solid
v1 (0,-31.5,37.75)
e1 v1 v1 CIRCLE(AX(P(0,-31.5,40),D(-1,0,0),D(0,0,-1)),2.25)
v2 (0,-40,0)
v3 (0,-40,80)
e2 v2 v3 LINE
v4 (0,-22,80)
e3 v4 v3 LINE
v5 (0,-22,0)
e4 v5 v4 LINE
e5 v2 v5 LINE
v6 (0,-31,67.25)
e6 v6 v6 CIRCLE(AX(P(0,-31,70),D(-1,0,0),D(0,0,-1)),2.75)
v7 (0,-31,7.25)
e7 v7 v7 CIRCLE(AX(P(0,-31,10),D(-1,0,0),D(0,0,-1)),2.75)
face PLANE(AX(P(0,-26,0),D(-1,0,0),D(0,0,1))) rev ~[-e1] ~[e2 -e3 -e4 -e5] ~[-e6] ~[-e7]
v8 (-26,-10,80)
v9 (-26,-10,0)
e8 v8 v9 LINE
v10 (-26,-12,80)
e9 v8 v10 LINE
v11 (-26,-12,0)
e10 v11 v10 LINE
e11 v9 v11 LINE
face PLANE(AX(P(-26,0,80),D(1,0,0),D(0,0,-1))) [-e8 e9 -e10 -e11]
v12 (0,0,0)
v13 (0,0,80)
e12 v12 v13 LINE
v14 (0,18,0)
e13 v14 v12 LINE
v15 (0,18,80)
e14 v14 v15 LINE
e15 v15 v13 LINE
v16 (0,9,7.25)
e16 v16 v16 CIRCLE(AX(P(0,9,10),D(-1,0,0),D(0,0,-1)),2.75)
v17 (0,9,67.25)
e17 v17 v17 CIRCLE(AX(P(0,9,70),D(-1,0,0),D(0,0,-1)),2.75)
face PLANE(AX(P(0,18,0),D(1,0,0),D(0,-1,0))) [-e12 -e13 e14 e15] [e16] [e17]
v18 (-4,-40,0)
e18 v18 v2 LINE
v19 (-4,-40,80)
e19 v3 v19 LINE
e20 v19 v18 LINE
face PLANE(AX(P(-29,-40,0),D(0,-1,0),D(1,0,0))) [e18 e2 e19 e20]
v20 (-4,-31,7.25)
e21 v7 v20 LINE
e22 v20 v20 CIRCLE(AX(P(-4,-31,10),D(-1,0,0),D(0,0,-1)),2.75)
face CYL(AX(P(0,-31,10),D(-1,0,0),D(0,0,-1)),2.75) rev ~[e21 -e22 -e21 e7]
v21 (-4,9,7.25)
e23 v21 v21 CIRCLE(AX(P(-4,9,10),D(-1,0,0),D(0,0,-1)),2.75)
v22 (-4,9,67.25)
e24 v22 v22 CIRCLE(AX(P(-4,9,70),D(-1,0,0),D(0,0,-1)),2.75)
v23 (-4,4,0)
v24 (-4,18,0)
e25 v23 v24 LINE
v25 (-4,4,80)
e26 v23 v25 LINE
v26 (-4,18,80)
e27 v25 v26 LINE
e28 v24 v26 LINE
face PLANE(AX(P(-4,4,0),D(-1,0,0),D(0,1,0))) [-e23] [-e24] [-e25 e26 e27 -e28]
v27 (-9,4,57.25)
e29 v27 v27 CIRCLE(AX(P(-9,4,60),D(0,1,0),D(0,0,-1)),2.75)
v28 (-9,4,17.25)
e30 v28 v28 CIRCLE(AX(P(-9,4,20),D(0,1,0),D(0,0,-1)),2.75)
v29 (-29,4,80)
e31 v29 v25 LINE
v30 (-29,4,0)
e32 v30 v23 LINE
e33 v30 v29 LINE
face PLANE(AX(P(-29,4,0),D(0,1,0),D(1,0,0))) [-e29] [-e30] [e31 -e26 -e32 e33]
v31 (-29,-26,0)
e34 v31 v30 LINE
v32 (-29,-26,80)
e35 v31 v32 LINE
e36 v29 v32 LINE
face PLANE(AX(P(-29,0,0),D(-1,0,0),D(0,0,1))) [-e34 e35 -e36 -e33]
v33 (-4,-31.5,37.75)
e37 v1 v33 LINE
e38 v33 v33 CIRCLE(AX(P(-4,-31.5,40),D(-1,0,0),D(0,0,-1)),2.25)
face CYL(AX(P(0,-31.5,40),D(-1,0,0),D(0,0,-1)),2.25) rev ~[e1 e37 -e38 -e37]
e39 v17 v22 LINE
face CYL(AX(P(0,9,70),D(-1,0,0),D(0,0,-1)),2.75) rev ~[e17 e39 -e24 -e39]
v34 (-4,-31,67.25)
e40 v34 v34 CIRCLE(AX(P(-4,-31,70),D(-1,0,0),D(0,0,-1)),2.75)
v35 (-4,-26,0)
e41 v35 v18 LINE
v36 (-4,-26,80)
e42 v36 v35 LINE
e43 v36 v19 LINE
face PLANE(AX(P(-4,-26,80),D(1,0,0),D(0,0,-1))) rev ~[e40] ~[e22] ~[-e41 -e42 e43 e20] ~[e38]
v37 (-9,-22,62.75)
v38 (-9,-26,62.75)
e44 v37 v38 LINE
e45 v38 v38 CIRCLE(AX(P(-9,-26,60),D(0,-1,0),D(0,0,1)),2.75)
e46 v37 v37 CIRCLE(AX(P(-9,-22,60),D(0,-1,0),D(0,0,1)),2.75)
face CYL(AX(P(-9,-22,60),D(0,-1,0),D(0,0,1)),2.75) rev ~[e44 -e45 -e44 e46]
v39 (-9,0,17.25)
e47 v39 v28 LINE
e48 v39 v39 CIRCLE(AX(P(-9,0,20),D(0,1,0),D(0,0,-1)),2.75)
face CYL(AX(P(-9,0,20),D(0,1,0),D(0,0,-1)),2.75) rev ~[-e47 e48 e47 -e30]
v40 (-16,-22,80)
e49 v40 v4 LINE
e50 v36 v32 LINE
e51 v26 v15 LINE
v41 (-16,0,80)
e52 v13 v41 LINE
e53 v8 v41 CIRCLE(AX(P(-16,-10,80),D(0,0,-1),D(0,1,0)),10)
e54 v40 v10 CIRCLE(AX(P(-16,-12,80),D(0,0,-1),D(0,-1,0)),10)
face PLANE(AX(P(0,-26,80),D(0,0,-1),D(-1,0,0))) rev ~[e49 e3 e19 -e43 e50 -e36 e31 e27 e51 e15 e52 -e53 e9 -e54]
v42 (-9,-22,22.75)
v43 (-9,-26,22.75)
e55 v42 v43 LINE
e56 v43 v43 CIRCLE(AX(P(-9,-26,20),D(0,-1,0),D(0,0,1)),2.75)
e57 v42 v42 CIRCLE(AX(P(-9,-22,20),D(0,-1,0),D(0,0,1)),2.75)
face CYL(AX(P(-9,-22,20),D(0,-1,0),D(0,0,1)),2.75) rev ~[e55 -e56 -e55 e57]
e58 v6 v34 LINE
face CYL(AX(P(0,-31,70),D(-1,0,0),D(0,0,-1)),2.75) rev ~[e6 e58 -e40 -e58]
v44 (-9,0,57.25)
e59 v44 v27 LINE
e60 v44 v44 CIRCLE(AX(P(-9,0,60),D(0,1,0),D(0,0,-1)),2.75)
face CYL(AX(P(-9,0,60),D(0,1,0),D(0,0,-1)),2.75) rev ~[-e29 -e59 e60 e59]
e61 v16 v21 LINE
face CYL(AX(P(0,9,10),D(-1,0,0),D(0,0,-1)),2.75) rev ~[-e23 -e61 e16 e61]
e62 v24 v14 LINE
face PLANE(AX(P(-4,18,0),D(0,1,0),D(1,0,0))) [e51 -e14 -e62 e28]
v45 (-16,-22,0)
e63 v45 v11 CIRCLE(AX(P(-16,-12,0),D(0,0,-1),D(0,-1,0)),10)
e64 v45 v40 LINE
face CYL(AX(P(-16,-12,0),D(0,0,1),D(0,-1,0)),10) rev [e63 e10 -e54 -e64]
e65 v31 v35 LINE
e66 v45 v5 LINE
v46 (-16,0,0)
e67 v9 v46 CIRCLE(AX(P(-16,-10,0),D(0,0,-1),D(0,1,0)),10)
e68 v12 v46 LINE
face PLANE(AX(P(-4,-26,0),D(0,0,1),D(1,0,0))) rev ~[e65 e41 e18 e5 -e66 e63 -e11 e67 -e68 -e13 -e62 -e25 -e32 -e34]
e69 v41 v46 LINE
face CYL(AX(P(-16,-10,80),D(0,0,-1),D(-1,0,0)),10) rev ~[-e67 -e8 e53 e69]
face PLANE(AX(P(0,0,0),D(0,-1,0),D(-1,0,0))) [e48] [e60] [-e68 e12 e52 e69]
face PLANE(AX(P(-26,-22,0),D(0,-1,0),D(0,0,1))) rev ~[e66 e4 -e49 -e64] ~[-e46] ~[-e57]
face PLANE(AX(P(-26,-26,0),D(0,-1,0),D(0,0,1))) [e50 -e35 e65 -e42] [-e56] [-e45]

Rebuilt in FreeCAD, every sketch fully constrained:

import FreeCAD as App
import Part
import Sketcher
from FreeCAD import Vector
Q = App.Units.Quantity


def edges_at(feature, points):
    """Names of the edges that pass closest to the given points."""
    edges = feature.Shape.Edges
    near = lambda p: min(range(len(edges)), key=lambda i: edges[i].distToShape(Part.Vertex(*p))[0])
    return sorted({f"Edge{near(p) + 1}" for p in points})

doc = App.newDocument("Part")
body = doc.addObject("PartDesign::Body", "Body")

sketch1 = body.newObject("Sketcher::SketchObject", "Sketch")
sketch1.AttachmentSupport = (doc.getObject("XY_Plane"), [""])
sketch1.MapMode = "FlatFace"
sketch1.addGeometry(Part.LineSegment(Vector(-29, 0, 0), Vector(0, 0, 0)), False)
sketch1.addGeometry(Part.LineSegment(Vector(0, 0, 0), Vector(0, 18, 0)), False)
sketch1.addGeometry(Part.LineSegment(Vector(0, 18, 0), Vector(-4, 18, 0)), False)
sketch1.addGeometry(Part.LineSegment(Vector(-4, 18, 0), Vector(-4, 4, 0)), False)
sketch1.addGeometry(Part.LineSegment(Vector(-4, 4, 0), Vector(-29, 4, 0)), False)
sketch1.addGeometry(Part.LineSegment(Vector(-29, 4, 0), Vector(-29, 0, 0)), False)
sketch1.addConstraint(Sketcher.Constraint("Coincident", 0, 2, 1, 1))
sketch1.addConstraint(Sketcher.Constraint("Coincident", 1, 2, 2, 1))
sketch1.addConstraint(Sketcher.Constraint("Coincident", 2, 2, 3, 1))
sketch1.addConstraint(Sketcher.Constraint("Coincident", 3, 2, 4, 1))
sketch1.addConstraint(Sketcher.Constraint("Coincident", 4, 2, 5, 1))
sketch1.addConstraint(Sketcher.Constraint("Coincident", 5, 2, 0, 1))
sketch1.addConstraint(Sketcher.Constraint("Horizontal", 0))
sketch1.addConstraint(Sketcher.Constraint("Vertical", 1))
sketch1.addConstraint(Sketcher.Constraint("Horizontal", 2))
sketch1.addConstraint(Sketcher.Constraint("Vertical", 3))
sketch1.addConstraint(Sketcher.Constraint("Horizontal", 4))
sketch1.addConstraint(Sketcher.Constraint("Vertical", 5))
sketch1.addConstraint(Sketcher.Constraint("Coincident", 0, 2, -1, 1))
sketch1.addConstraint(Sketcher.Constraint("Equal", 2, 5))
sketch1.addConstraint(Sketcher.Constraint("DistanceX", 0, 1, 0, 2, Q("29 mm")))
sketch1.addConstraint(Sketcher.Constraint("DistanceX", 2, 2, 2, 1, Q("4 mm")))
sketch1.addConstraint(Sketcher.Constraint("DistanceY", 1, 1, 1, 2, Q("18 mm")))
pad1 = body.newObject("PartDesign::Pad", "Pad")
pad1.Profile = sketch1
pad1.Length = 80

sketch2 = body.newObject("Sketcher::SketchObject", "Sketch001")
sketch2.AttachmentSupport = (doc.getObject("YZ_Plane"), [""])
sketch2.MapMode = "FlatFace"
sketch2.addGeometry(Part.Circle(Vector(9, 70, 0), Vector(0, 0, 1), 2.8), False)
sketch2.addGeometry(Part.Circle(Vector(9, 10, 0), Vector(0, 0, 1), 2.8), False)
sketch2.addConstraint(Sketcher.Constraint("Equal", 0, 1))
sketch2.addConstraint(Sketcher.Constraint("Vertical", 0, 3, 1, 3))
sketch2.addConstraint(Sketcher.Constraint("Diameter", 0, Q("5.5 mm")))
sketch2.addConstraint(Sketcher.Constraint("DistanceX", -1, 1, 0, 3, Q("9 mm")))
sketch2.addConstraint(Sketcher.Constraint("DistanceY", -1, 1, 0, 3, Q("70 mm")))
sketch2.addConstraint(Sketcher.Constraint("DistanceY", -1, 1, 1, 3, Q("10 mm")))
doc.recompute()
hole = body.newObject("PartDesign::Hole", "Hole")
hole.Profile = sketch2
hole.ThreadType = "None"
hole.Diameter = 5.5
hole.DepthType = "ThroughAll"

sketch3 = body.newObject("Sketcher::SketchObject", "Sketch002")
sketch3.AttachmentSupport = (doc.getObject("XZ_Plane"), [""])
sketch3.MapMode = "FlatFace"
sketch3.addGeometry(Part.Circle(Vector(-9, 60, 0), Vector(0, 0, 1), 2.8), False)
sketch3.addGeometry(Part.Circle(Vector(-9, 20, 0), Vector(0, 0, 1), 2.8), False)
sketch3.addConstraint(Sketcher.Constraint("Equal", 0, 1))
sketch3.addConstraint(Sketcher.Constraint("Vertical", 0, 3, 1, 3))
sketch3.addConstraint(Sketcher.Constraint("Diameter", 0, Q("5.5 mm")))
sketch3.addConstraint(Sketcher.Constraint("DistanceX", 0, 3, -1, 1, Q("9 mm")))
sketch3.addConstraint(Sketcher.Constraint("DistanceY", -1, 1, 0, 3, Q("60 mm")))
sketch3.addConstraint(Sketcher.Constraint("DistanceY", -1, 1, 1, 3, Q("20 mm")))
doc.recompute()
hole2 = body.newObject("PartDesign::Hole", "Hole001")
hole2.Profile = sketch3
hole2.ThreadType = "None"
hole2.Diameter = 5.5
hole2.DepthType = "ThroughAll"

sketch4 = body.newObject("Sketcher::SketchObject", "Sketch003")
sketch4.AttachmentSupport = (doc.getObject("XZ_Plane"), [""])
sketch4.MapMode = "FlatFace"
sketch4.addGeometry(Part.LineSegment(Vector(-26, 0, 0), Vector(-26, 80, 0)), False)
sketch4.addGeometry(Part.LineSegment(Vector(-26, 80, 0), Vector(-29, 80, 0)), False)
sketch4.addGeometry(Part.LineSegment(Vector(-29, 80, 0), Vector(-29, 0, 0)), False)
sketch4.addGeometry(Part.LineSegment(Vector(-29, 0, 0), Vector(-26, 0, 0)), False)
sketch4.addConstraint(Sketcher.Constraint("Coincident", 0, 2, 1, 1))
sketch4.addConstraint(Sketcher.Constraint("Coincident", 1, 2, 2, 1))
sketch4.addConstraint(Sketcher.Constraint("Coincident", 2, 2, 3, 1))
sketch4.addConstraint(Sketcher.Constraint("Coincident", 3, 2, 0, 1))
sketch4.addConstraint(Sketcher.Constraint("Vertical", 0))
sketch4.addConstraint(Sketcher.Constraint("Horizontal", 1))
sketch4.addConstraint(Sketcher.Constraint("Vertical", 2))
sketch4.addConstraint(Sketcher.Constraint("Horizontal", 3))
sketch4.addConstraint(Sketcher.Constraint("PointOnObject", 2, 2, -1))
sketch4.addConstraint(Sketcher.Constraint("DistanceX", 1, 2, 1, 1, Q("3 mm")))
sketch4.addConstraint(Sketcher.Constraint("DistanceY", 0, 1, 0, 2, Q("80 mm")))
sketch4.addConstraint(Sketcher.Constraint("DistanceX", 0, 2, -1, 1, Q("26 mm")))
pad2 = body.newObject("PartDesign::Pad", "Pad001")
pad2.Profile = sketch4
pad2.Length = 26

sketch5 = body.newObject("Sketcher::SketchObject", "Sketch004")
sketch5.AttachmentSupport = (doc.getObject("YZ_Plane"), [""])
sketch5.MapMode = "FlatFace"
sketch5.AttachmentOffset = App.Placement(Vector(0, 0, -26), App.Rotation())
sketch5.addGeometry(Part.LineSegment(Vector(-26, 80, 0), Vector(-26, 0, 0)), False)
sketch5.addGeometry(Part.LineSegment(Vector(-26, 0, 0), Vector(-22, 0, 0)), False)
sketch5.addGeometry(Part.LineSegment(Vector(-22, 0, 0), Vector(-22, 80, 0)), False)
sketch5.addGeometry(Part.LineSegment(Vector(-22, 80, 0), Vector(-26, 80, 0)), False)
sketch5.addConstraint(Sketcher.Constraint("Coincident", 0, 2, 1, 1))
sketch5.addConstraint(Sketcher.Constraint("Coincident", 1, 2, 2, 1))
sketch5.addConstraint(Sketcher.Constraint("Coincident", 2, 2, 3, 1))
sketch5.addConstraint(Sketcher.Constraint("Coincident", 3, 2, 0, 1))
sketch5.addConstraint(Sketcher.Constraint("Vertical", 0))
sketch5.addConstraint(Sketcher.Constraint("Horizontal", 1))
sketch5.addConstraint(Sketcher.Constraint("Vertical", 2))
sketch5.addConstraint(Sketcher.Constraint("Horizontal", 3))
sketch5.addConstraint(Sketcher.Constraint("PointOnObject", 0, 2, -1))
sketch5.addConstraint(Sketcher.Constraint("DistanceX", 1, 1, 1, 2, Q("4 mm")))
sketch5.addConstraint(Sketcher.Constraint("DistanceY", 0, 2, 0, 1, Q("80 mm")))
sketch5.addConstraint(Sketcher.Constraint("DistanceX", 0, 2, -1, 1, Q("26 mm")))
pad3 = body.newObject("PartDesign::Pad", "Pad002")
pad3.Profile = sketch5
pad3.Length = 26

sketch6 = body.newObject("Sketcher::SketchObject", "Sketch005")
sketch6.AttachmentSupport = (doc.getObject("XZ_Plane"), [""])
sketch6.MapMode = "FlatFace"
sketch6.AttachmentOffset = App.Placement(Vector(0, 0, 26), App.Rotation())
sketch6.addGeometry(Part.LineSegment(Vector(0, 0, 0), Vector(0, 80, 0)), False)
sketch6.addGeometry(Part.LineSegment(Vector(0, 80, 0), Vector(-4, 80, 0)), False)
sketch6.addGeometry(Part.LineSegment(Vector(-4, 80, 0), Vector(-4, 0, 0)), False)
sketch6.addGeometry(Part.LineSegment(Vector(-4, 0, 0), Vector(0, 0, 0)), False)
sketch6.addConstraint(Sketcher.Constraint("Coincident", 0, 2, 1, 1))
sketch6.addConstraint(Sketcher.Constraint("Coincident", 1, 2, 2, 1))
sketch6.addConstraint(Sketcher.Constraint("Coincident", 2, 2, 3, 1))
sketch6.addConstraint(Sketcher.Constraint("Coincident", 3, 2, 0, 1))
sketch6.addConstraint(Sketcher.Constraint("Vertical", 0))
sketch6.addConstraint(Sketcher.Constraint("Horizontal", 1))
sketch6.addConstraint(Sketcher.Constraint("Vertical", 2))
sketch6.addConstraint(Sketcher.Constraint("Horizontal", 3))
sketch6.addConstraint(Sketcher.Constraint("Coincident", 3, 2, -1, 1))
sketch6.addConstraint(Sketcher.Constraint("DistanceX", 1, 2, 1, 1, Q("4 mm")))
sketch6.addConstraint(Sketcher.Constraint("DistanceY", 0, 1, 0, 2, Q("80 mm")))
pad4 = body.newObject("PartDesign::Pad", "Pad003")
pad4.Profile = sketch6
pad4.Length = 14

sketch7 = body.newObject("Sketcher::SketchObject", "Sketch006")
sketch7.AttachmentSupport = (doc.getObject("YZ_Plane"), [""])
sketch7.MapMode = "FlatFace"
sketch7.addGeometry(Part.Circle(Vector(-31, 70, 0), Vector(0, 0, 1), 2.8), False)
sketch7.addGeometry(Part.Circle(Vector(-31, 10, 0), Vector(0, 0, 1), 2.8), False)
sketch7.addConstraint(Sketcher.Constraint("Equal", 0, 1))
sketch7.addConstraint(Sketcher.Constraint("Vertical", 0, 3, 1, 3))
sketch7.addConstraint(Sketcher.Constraint("Diameter", 0, Q("5.5 mm")))
sketch7.addConstraint(Sketcher.Constraint("DistanceX", 0, 3, -1, 1, Q("31 mm")))
sketch7.addConstraint(Sketcher.Constraint("DistanceY", -1, 1, 0, 3, Q("70 mm")))
sketch7.addConstraint(Sketcher.Constraint("DistanceY", -1, 1, 1, 3, Q("10 mm")))
doc.recompute()
hole3 = body.newObject("PartDesign::Hole", "Hole002")
hole3.Profile = sketch7
hole3.ThreadType = "None"
hole3.Diameter = 5.5
hole3.DepthType = "ThroughAll"

sketch8 = body.newObject("Sketcher::SketchObject", "Sketch007")
sketch8.AttachmentSupport = (doc.getObject("XZ_Plane"), [""])
sketch8.MapMode = "FlatFace"
sketch8.AttachmentOffset = App.Placement(Vector(0, 0, 22), App.Rotation())
sketch8.addGeometry(Part.Circle(Vector(-9, 60, 0), Vector(0, 0, 1), 2.8), False)
sketch8.addGeometry(Part.Circle(Vector(-9, 20, 0), Vector(0, 0, 1), 2.8), False)
sketch8.addConstraint(Sketcher.Constraint("Equal", 0, 1))
sketch8.addConstraint(Sketcher.Constraint("Vertical", 0, 3, 1, 3))
sketch8.addConstraint(Sketcher.Constraint("Diameter", 0, Q("5.5 mm")))
sketch8.addConstraint(Sketcher.Constraint("DistanceX", 0, 3, -1, 1, Q("9 mm")))
sketch8.addConstraint(Sketcher.Constraint("DistanceY", -1, 1, 0, 3, Q("60 mm")))
sketch8.addConstraint(Sketcher.Constraint("DistanceY", -1, 1, 1, 3, Q("20 mm")))
doc.recompute()
hole4 = body.newObject("PartDesign::Hole", "Hole003")
hole4.Profile = sketch8
hole4.ThreadType = "None"
hole4.Diameter = 5.5
hole4.DepthType = "ThroughAll"
hole4.Reversed = True

sketch9 = body.newObject("Sketcher::SketchObject", "Sketch008")
sketch9.AttachmentSupport = (doc.getObject("YZ_Plane"), [""])
sketch9.MapMode = "FlatFace"
sketch9.addGeometry(Part.Circle(Vector(-31.5, 40, 0), Vector(0, 0, 1), 2.2), False)
sketch9.addConstraint(Sketcher.Constraint("Diameter", 0, Q("4.5 mm")))
sketch9.addConstraint(Sketcher.Constraint("DistanceY", -1, 1, 0, 3, Q("40 mm")))
sketch9.addConstraint(Sketcher.Constraint("DistanceX", 0, 3, -1, 1, Q("31.5 mm")))
doc.recompute()
hole5 = body.newObject("PartDesign::Hole", "Hole004")
hole5.Profile = sketch9
hole5.ThreadType = "None"
hole5.Diameter = 4.5
hole5.DepthType = "Dimension"
hole5.Depth = 8
hole5.DrillPoint = "Angled"
hole5.DrillPointAngle = 118
doc.recompute()

fillet = body.newObject("PartDesign::Fillet", "Fillet")
fillet.Base = (hole5, edges_at(hole5, [(-26, -22, 40), (-26, 0, 40)]))
fillet.Radius = 10

doc.recompute()
